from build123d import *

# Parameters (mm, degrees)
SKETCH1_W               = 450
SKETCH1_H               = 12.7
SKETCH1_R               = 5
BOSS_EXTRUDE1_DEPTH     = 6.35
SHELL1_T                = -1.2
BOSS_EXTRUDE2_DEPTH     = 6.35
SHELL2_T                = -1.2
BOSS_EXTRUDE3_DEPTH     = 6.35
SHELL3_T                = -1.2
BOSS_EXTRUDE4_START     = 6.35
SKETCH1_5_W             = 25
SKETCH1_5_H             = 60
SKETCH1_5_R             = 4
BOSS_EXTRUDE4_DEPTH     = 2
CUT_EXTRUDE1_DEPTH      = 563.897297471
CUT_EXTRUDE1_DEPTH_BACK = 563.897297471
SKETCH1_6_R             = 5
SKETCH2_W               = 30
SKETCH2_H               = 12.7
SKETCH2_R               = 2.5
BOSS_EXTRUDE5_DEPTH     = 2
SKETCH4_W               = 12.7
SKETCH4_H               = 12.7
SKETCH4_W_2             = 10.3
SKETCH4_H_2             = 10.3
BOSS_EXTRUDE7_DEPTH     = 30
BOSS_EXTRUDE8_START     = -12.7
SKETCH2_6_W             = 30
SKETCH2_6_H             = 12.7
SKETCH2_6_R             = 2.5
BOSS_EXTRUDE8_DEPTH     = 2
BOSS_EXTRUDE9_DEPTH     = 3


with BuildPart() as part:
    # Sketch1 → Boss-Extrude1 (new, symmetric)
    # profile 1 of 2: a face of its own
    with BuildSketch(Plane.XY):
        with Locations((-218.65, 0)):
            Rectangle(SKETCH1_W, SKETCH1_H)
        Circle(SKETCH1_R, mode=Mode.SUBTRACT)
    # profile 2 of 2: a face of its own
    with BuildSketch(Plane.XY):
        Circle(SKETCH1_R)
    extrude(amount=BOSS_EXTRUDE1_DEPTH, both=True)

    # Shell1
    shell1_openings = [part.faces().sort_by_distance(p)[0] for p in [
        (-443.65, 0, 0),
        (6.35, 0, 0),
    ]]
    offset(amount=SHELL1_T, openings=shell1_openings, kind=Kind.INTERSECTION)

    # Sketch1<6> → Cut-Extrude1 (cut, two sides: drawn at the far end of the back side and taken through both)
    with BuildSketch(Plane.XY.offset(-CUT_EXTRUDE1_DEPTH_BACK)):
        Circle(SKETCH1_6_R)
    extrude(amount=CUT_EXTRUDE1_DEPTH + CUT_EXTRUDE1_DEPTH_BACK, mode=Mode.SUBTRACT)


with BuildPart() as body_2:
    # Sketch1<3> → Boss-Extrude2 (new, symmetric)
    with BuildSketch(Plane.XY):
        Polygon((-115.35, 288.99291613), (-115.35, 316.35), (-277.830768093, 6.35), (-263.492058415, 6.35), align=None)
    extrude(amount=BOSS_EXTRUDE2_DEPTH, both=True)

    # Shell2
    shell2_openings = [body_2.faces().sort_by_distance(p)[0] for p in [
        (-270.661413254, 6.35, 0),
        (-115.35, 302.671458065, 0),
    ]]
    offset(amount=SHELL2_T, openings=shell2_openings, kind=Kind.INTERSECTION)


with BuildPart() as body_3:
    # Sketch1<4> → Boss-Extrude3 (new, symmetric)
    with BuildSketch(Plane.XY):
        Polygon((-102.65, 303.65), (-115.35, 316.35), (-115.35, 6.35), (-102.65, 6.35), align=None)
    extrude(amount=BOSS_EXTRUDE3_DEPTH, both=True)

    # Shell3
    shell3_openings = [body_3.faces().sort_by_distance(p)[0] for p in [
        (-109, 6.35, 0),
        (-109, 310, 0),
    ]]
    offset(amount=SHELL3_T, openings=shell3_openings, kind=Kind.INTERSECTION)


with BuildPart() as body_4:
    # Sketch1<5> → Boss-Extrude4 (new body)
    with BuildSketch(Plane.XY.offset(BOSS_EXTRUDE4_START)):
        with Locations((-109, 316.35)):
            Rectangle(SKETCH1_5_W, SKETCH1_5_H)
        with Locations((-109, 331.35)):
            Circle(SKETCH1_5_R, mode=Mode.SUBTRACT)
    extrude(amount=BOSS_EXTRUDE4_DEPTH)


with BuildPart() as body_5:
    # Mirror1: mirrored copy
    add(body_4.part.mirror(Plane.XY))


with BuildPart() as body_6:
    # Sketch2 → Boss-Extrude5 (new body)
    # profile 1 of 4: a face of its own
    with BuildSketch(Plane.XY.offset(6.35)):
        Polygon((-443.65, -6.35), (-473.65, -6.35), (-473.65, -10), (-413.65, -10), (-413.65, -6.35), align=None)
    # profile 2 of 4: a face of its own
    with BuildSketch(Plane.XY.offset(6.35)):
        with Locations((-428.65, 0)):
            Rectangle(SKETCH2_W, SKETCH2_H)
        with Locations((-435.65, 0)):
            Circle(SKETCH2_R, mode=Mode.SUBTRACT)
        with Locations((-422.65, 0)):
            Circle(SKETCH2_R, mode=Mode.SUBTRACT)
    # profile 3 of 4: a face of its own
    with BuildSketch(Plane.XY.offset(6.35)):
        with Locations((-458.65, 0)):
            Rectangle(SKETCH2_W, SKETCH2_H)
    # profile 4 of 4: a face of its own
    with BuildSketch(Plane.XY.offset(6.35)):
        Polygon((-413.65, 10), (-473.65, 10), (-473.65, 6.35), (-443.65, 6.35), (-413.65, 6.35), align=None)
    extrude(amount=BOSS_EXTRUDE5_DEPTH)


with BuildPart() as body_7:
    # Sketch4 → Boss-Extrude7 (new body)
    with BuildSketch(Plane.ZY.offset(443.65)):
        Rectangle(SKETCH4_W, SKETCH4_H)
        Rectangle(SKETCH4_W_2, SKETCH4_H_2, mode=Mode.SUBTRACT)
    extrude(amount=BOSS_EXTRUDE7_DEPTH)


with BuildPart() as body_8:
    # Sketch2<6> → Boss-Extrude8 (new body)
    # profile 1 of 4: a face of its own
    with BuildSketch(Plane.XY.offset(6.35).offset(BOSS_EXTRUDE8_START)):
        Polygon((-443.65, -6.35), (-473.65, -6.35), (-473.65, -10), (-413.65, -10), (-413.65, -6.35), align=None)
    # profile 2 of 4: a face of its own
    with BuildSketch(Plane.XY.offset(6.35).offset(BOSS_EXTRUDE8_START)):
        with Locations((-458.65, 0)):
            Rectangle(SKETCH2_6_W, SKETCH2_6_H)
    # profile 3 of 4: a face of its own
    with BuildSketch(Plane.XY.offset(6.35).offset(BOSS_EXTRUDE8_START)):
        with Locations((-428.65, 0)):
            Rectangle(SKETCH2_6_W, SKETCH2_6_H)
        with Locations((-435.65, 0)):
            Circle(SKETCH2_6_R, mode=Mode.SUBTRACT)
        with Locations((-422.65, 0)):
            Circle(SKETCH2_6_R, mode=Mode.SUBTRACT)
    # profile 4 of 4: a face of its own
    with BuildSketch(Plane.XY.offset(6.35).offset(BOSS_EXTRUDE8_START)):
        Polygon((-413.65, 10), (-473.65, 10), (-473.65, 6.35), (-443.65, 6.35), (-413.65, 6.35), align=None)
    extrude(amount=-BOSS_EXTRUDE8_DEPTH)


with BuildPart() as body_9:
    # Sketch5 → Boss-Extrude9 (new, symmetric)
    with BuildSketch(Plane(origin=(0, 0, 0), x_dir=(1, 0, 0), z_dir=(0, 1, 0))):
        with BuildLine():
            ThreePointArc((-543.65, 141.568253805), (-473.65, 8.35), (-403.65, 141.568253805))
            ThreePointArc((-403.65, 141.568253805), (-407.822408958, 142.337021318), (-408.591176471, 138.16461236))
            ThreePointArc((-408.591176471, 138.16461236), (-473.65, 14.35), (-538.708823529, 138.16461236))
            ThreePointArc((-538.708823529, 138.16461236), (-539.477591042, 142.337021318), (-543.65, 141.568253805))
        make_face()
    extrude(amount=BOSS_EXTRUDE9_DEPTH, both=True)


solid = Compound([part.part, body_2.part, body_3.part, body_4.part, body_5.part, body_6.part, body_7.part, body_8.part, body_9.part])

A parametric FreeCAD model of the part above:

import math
import FreeCAD as App
import Part
import Sketcher
Q = App.Units.Quantity


def faces_at(feature, points):
    """Names of the faces that lie closest to the given points."""
    faces = feature.Shape.Faces
    near = lambda p: min(range(len(faces)), key=lambda i: faces[i].distToShape(Part.Vertex(*p))[0])
    return sorted({f"Face{near(p) + 1}" for p in points})


def add_polygon(sketch, points):
    """Adds a closed chain of lines whose ends are joined by coincident constraints."""
    first, n = sketch.GeometryCount, len(points)
    for a, b in zip(points, points[1:] + points[:1]):
        sketch.addGeometry(Part.LineSegment(App.Vector(*a, 0), App.Vector(*b, 0)), False)
    for i in range(n):
        sketch.addConstraint(Sketcher.Constraint("Coincident", first + i, 2, first + (i + 1) % n, 1))

doc = App.newDocument("Part")
params = doc.addObject("Spreadsheet::Sheet", "Params")
for row, (alias, value) in enumerate([
    ("sketch1_width", "450 mm"),
    ("sketch1_height", "12.7 mm"),
    ("pad1_length", "12.7 mm"),
    ("thickness_wall", "1.2 mm"),
    ("sketch2_diameter", "10 mm"),
    ("sketch3_length", "350 mm"),
    ("pad2_length", "12.7 mm"),
    ("thickness2_wall", "1.2 mm"),
    ("sketch4_height", "310 mm"),
    ("sketch4_width", "12.7 mm"),
    ("pad3_length", "12.7 mm"),
    ("thickness3_wall", "1.2 mm"),
    ("sketch5_diameter", "8 mm"),
    ("sketch5_width", "25 mm"),
    ("sketch5_height", "60 mm"),
    ("pad4_length", "2 mm"),
    ("sketch6_diameter", "5 mm"),
    ("sketch6_width", "60 mm"),
    ("sketch6_height", "20 mm"),
    ("pad5_length", "2 mm"),
    ("sketch7_width", "12.7 mm"),
    ("sketch7_width2", "10.3 mm"),
    ("pad6_length", "30 mm"),
    ("sketch8_diameter", "5 mm"),
    ("sketch8_width", "60 mm"),
    ("sketch8_height", "20 mm"),
    ("pad7_length", "2 mm"),
    ("sketch9_radius", "85 mm"),
    ("sketch9_radius2", "3 mm"),
    ("sketch9_width", "70 mm"),
    ("pad8_length", "6 mm"),
], start=1):
    params.set(f"A{row}", alias)
    params.set(f"B{row}", "=" + value)
    params.setAlias(f"B{row}", alias)

body = doc.addObject("PartDesign::Body", "Body")

# Sketch on XY plane
sketch1 = doc.addObject("Sketcher::SketchObject", "Sketch")
body.addObject(sketch1)
sketch1.AttachmentSupport = (doc.XY_Plane, [""])
sketch1.MapMode = "FlatFace"
add_polygon(sketch1, [(-444, 6), (-444, -6), (6, -6), (6, 6)])  # lines 0-3
sketch1.addConstraint(Sketcher.Constraint("Vertical", 0))
sketch1.addConstraint(Sketcher.Constraint("Horizontal", 1))
sketch1.addConstraint(Sketcher.Constraint("Vertical", 2))
sketch1.addConstraint(Sketcher.Constraint("Horizontal", 3))
sketch1.addConstraint(Sketcher.Constraint("DistanceX", 1, 1, 1, 2, 450.0))
sketch1.addConstraint(Sketcher.Constraint("DistanceY", 0, 2, 0, 1, 12.7))
sketch1.addConstraint(Sketcher.Constraint("DistanceX", 0, 2, -1, 1, 443.65))
sketch1.addConstraint(Sketcher.Constraint("DistanceY", 0, 2, -1, 1, 6.35))
sketch1.setExpression("Constraints[8]", "Params.sketch1_width")
sketch1.setExpression("Constraints[9]", "Params.sketch1_height")
pad1 = doc.addObject("PartDesign::Pad", "Pad")
body.addObject(pad1)
pad1.Profile = sketch1
pad1.setExpression("Length", "Params.pad1_length")
pad1.Midplane = True
doc.recompute()

thickness = doc.addObject("PartDesign::Thickness", "Thickness")
body.addObject(thickness)
thickness.Base = (pad1, faces_at(pad1, [(-443.65, 0, 0), (6.35, 0, 0)]))
thickness.setExpression("Value", "Params.thickness_wall")
thickness.Reversed = True
thickness.Join = "Intersection"

# Sketch on XY plane
sketch2 = doc.addObject("Sketcher::SketchObject", "Sketch001")
body.addObject(sketch2)
sketch2.AttachmentSupport = (doc.XY_Plane, [""])
sketch2.MapMode = "FlatFace"
sketch2.addGeometry(Part.Circle(App.Vector(0, 0, 0), App.Vector(0, 0, 1), 5), False)
sketch2.addConstraint(Sketcher.Constraint("Coincident", 0, 3, -1, 1))
sketch2.addConstraint(Sketcher.Constraint("Diameter", 0, 10.0))
sketch2.setExpression("Constraints[1]", "Params.sketch2_diameter")
pocket1 = doc.addObject("PartDesign::Pocket", "Pocket")
body.addObject(pocket1)
pocket1.Profile = sketch2
pocket1.Type = "ThroughAll"
pocket1.Midplane = True
body2 = doc.addObject("PartDesign::Body", "Body001")

# Sketch on XY plane
sketch3 = doc.addObject("Sketcher::SketchObject", "Sketch002")
body2.addObject(sketch3)
sketch3.AttachmentSupport = (doc.getObject("XY_Plane001"), [""])
sketch3.MapMode = "FlatFace"
add_polygon(sketch3, [(-115, 289), (-115, 316), (-278, 6), (-263, 6)])  # lines 0-3
sketch3.addConstraint(Sketcher.Constraint("Vertical", 0))
sketch3.addConstraint(Sketcher.Constraint("Horizontal", 2))
sketch3.addConstraint(Sketcher.Constraint("Parallel", 1, 3))
sketch3.addConstraint(Sketcher.Constraint("Distance", 1, 350.0))
sketch3.addConstraint(Sketcher.Constraint("DistanceY", 1, 2, 0, 2, 310.0))
sketch3.addConstraint(Sketcher.Constraint("DistanceX", 0, 2, -1, 1, 115.35))
sketch3.addConstraint(Sketcher.Constraint("DistanceY", -1, 1, 0, 2, 316.35))
sketch3.addConstraint(Sketcher.Constraint("DistanceX", 2, 1, 2, 2, 14.33871))
sketch3.setExpression("Constraints[7]", "Params.sketch3_length")
pad2 = doc.addObject("PartDesign::Pad", "Pad001")
body2.addObject(pad2)
pad2.Profile = sketch3
pad2.setExpression("Length", "Params.pad2_length")
pad2.Midplane = True
doc.recompute()

thickness2 = doc.addObject("PartDesign::Thickness", "Thickness001")
body2.addObject(thickness2)
thickness2.Base = (pad2, faces_at(pad2, [(-270.661, 6.35, 0), (-115.35, 302.671, 0)]))
thickness2.setExpression("Value", "Params.thickness2_wall")
thickness2.Reversed = True
thickness2.Join = "Intersection"
body3 = doc.addObject("PartDesign::Body", "Body002")

# Sketch on XY plane
sketch4 = doc.addObject("Sketcher::SketchObject", "Sketch003")
body3.addObject(sketch4)
sketch4.AttachmentSupport = (doc.getObject("XY_Plane002"), [""])
sketch4.MapMode = "FlatFace"
add_polygon(sketch4, [(-103, 304), (-115, 316), (-115, 6), (-103, 6)])  # lines 0-3
sketch4.addConstraint(Sketcher.Constraint("Vertical", 1))
sketch4.addConstraint(Sketcher.Constraint("Horizontal", 2))
sketch4.addConstraint(Sketcher.Constraint("Vertical", 3))
sketch4.addConstraint(Sketcher.Constraint("DistanceY", 1, 2, 1, 1, 310.0))
sketch4.addConstraint(Sketcher.Constraint("Angle", 0, Q("135 deg")))
sketch4.addConstraint(Sketcher.Constraint("DistanceX", 2, 1, 2, 2, 12.7))
sketch4.addConstraint(Sketcher.Constraint("DistanceX", 0, 2, -1, 1, 115.35))
sketch4.addConstraint(Sketcher.Constraint("DistanceY", -1, 1, 0, 2, 316.35))
sketch4.setExpression("Constraints[7]", "Params.sketch4_height")
sketch4.setExpression("Constraints[9]", "Params.sketch4_width")
pad3 = doc.addObject("PartDesign::Pad", "Pad002")
body3.addObject(pad3)
pad3.Profile = sketch4
pad3.setExpression("Length", "Params.pad3_length")
pad3.Midplane = True
doc.recompute()

thickness3 = doc.addObject("PartDesign::Thickness", "Thickness002")
body3.addObject(thickness3)
thickness3.Base = (pad3, faces_at(pad3, [(-109, 6.35, 0), (-109, 310, 0)]))
thickness3.setExpression("Value", "Params.thickness3_wall")
thickness3.Reversed = True
thickness3.Join = "Intersection"
body4 = doc.addObject("PartDesign::Body", "Body003")

# Sketch on XY plane
sketch5 = doc.addObject("Sketcher::SketchObject", "Sketch004")
body4.addObject(sketch5)
sketch5.AttachmentSupport = (doc.getObject("XY_Plane003"), [""])
sketch5.MapMode = "FlatFace"
sketch5.AttachmentOffset = App.Placement(App.Vector(0, 0, 6.35), App.Rotation())
add_polygon(sketch5, [(-121.5, 346.4), (-121.5, 286.4), (-96.5, 286.4), (-96.5, 346.4)])  # lines 0-3
sketch5.addGeometry(Part.Circle(App.Vector(-109, 331.4, 0), App.Vector(0, 0, 1), 4), False)  # 4
sketch5.addConstraint(Sketcher.Constraint("Vertical", 0))
sketch5.addConstraint(Sketcher.Constraint("Horizontal", 1))
sketch5.addConstraint(Sketcher.Constraint("Vertical", 2))
sketch5.addConstraint(Sketcher.Constraint("Horizontal", 3))
sketch5.addConstraint(Sketcher.Constraint("Diameter", 4, 8.0))
sketch5.addConstraint(Sketcher.Constraint("DistanceX", 1, 1, 1, 2, 25.0))
sketch5.addConstraint(Sketcher.Constraint("DistanceY", 0, 2, 0, 1, 60.0))
sketch5.addConstraint(Sketcher.Constraint("DistanceX", 4, 3, -1, 1, 109.0))
sketch5.addConstraint(Sketcher.Constraint("DistanceY", 0, 2, 4, 3, 45.0))
sketch5.addConstraint(Sketcher.Constraint("DistanceX", 0, 2, -1, 1, 121.5))
sketch5.addConstraint(Sketcher.Constraint("DistanceY", -1, 1, 4, 3, 331.35))
sketch5.setExpression("Constraints[8]", "Params.sketch5_diameter")
sketch5.setExpression("Constraints[9]", "Params.sketch5_width")
sketch5.setExpression("Constraints[10]", "Params.sketch5_height")
pad4 = doc.addObject("PartDesign::Pad", "Pad003")
body4.addObject(pad4)
pad4.Profile = sketch5
pad4.setExpression("Length", "Params.pad4_length")
body5 = doc.addObject("PartDesign::Body", "Body004")
doc.recompute()

mirroring = doc.addObject("Part::Mirroring", "Mirroring")
mirroring.Source = body4
mirroring.Base = App.Vector(0, 0, 0)
mirroring.Normal = App.Vector(0, 0, 1)
body5.BaseFeature = mirroring
doc.recompute()
body6 = doc.addObject("PartDesign::Body", "Body005")

# Sketch on XY plane
sketch6 = doc.addObject("Sketcher::SketchObject", "Sketch005")
body6.addObject(sketch6)
sketch6.AttachmentSupport = (doc.getObject("XY_Plane005"), [""])
sketch6.MapMode = "FlatFace"
sketch6.AttachmentOffset = App.Placement(App.Vector(0, 0, 6.35), App.Rotation())
add_polygon(sketch6, [(-473.6, -10), (-413.6, -10), (-413.6, 10), (-473.6, 10)])  # lines 0-3
sketch6.addGeometry(Part.Circle(App.Vector(-422.6, 0, 0), App.Vector(0, 0, 1), 2.5), False)  # 4
sketch6.addGeometry(Part.Circle(App.Vector(-435.6, 0, 0), App.Vector(0, 0, 1), 2.5), False)  # 5
sketch6.addConstraint(Sketcher.Constraint("Horizontal", 0))
sketch6.addConstraint(Sketcher.Constraint("Vertical", 1))
sketch6.addConstraint(Sketcher.Constraint("Horizontal", 2))
sketch6.addConstraint(Sketcher.Constraint("Vertical", 3))
sketch6.addConstraint(Sketcher.Constraint("Equal", 4, 5))
sketch6.addConstraint(Sketcher.Constraint("PointOnObject", 4, 3, -1))
sketch6.addConstraint(Sketcher.Constraint("PointOnObject", 5, 3, -1))
sketch6.addConstraint(Sketcher.Constraint("Diameter", 4, 5.0))
sketch6.addConstraint(Sketcher.Constraint("DistanceX", 0, 1, 0, 2, 60.0))
sketch6.addConstraint(Sketcher.Constraint("DistanceY", 1, 1, 1, 2, 20.0))
sketch6.addConstraint(Sketcher.Constraint("DistanceY", 0, 2, -1, 1, 10.0))
sketch6.addConstraint(Sketcher.Constraint("DistanceX", 5, 3, 4, 3, 13.0))
sketch6.addConstraint(Sketcher.Constraint("DistanceX", 4, 3, 0, 2, 9.0))
sketch6.addConstraint(Sketcher.Constraint("DistanceX", 4, 3, -1, 1, 422.65))
sketch6.setExpression("Constraints[11]", "Params.sketch6_diameter")
sketch6.setExpression("Constraints[12]", "Params.sketch6_width")
sketch6.setExpression("Constraints[13]", "Params.sketch6_height")
pad5 = doc.addObject("PartDesign::Pad", "Pad004")
body6.addObject(pad5)
pad5.Profile = sketch6
pad5.setExpression("Length", "Params.pad5_length")
body7 = doc.addObject("PartDesign::Body", "Body006")

# Sketch on YZ plane
sketch7 = doc.addObject("Sketcher::SketchObject", "Sketch006")
body7.addObject(sketch7)
sketch7.AttachmentSupport = (doc.getObject("YZ_Plane006"), [""])
sketch7.MapMode = "FlatFace"
sketch7.AttachmentOffset = App.Placement(App.Vector(0, 0, -443.65), App.Rotation())
add_polygon(sketch7, [(6, -6), (-6, -6), (-6, 6), (6, 6)])  # lines 0-3
add_polygon(sketch7, [(-5, 5), (-5, -5), (5, -5), (5, 5)])  # lines 4-7
sketch7.addConstraint(Sketcher.Constraint("Horizontal", 0))
sketch7.addConstraint(Sketcher.Constraint("Vertical", 1))
sketch7.addConstraint(Sketcher.Constraint("Horizontal", 2))
sketch7.addConstraint(Sketcher.Constraint("Vertical", 3))
sketch7.addConstraint(Sketcher.Constraint("Vertical", 4))
sketch7.addConstraint(Sketcher.Constraint("Horizontal", 5))
sketch7.addConstraint(Sketcher.Constraint("Vertical", 6))
sketch7.addConstraint(Sketcher.Constraint("Horizontal", 7))
sketch7.addConstraint(Sketcher.Constraint("Symmetric", 0, 2, 2, 2, -1, 1))
sketch7.addConstraint(Sketcher.Constraint("Symmetric", 4, 2, 6, 2, -1, 1))
sketch7.addConstraint(Sketcher.Constraint("Equal", 2, 1))
sketch7.addConstraint(Sketcher.Constraint("Equal", 7, 4))
sketch7.addConstraint(Sketcher.Constraint("DistanceX", 0, 2, 0, 1, 12.7))
sketch7.addConstraint(Sketcher.Constraint("DistanceX", 5, 1, 5, 2, 10.3))
sketch7.setExpression("Constraints[20]", "Params.sketch7_width")
sketch7.setExpression("Constraints[21]", "Params.sketch7_width2")
pad6 = doc.addObject("PartDesign::Pad", "Pad005")
body7.addObject(pad6)
pad6.Profile = sketch7
pad6.setExpression("Length", "Params.pad6_length")
pad6.Reversed = True
body8 = doc.addObject("PartDesign::Body", "Body007")

# Sketch on XY plane
sketch8 = doc.addObject("Sketcher::SketchObject", "Sketch007")
body8.addObject(sketch8)
sketch8.AttachmentSupport = (doc.getObject("XY_Plane007"), [""])
sketch8.MapMode = "FlatFace"
sketch8.AttachmentOffset = App.Placement(App.Vector(0, 0, -6.35), App.Rotation())
add_polygon(sketch8, [(-473.6, -10), (-413.6, -10), (-413.6, 10), (-473.6, 10)])  # lines 0-3
sketch8.addGeometry(Part.Circle(App.Vector(-422.6, 0, 0), App.Vector(0, 0, 1), 2.5), False)  # 4
sketch8.addGeometry(Part.Circle(App.Vector(-435.6, 0, 0), App.Vector(0, 0, 1), 2.5), False)  # 5
sketch8.addConstraint(Sketcher.Constraint("Horizontal", 0))
sketch8.addConstraint(Sketcher.Constraint("Vertical", 1))
sketch8.addConstraint(Sketcher.Constraint("Horizontal", 2))
sketch8.addConstraint(Sketcher.Constraint("Vertical", 3))
sketch8.addConstraint(Sketcher.Constraint("Equal", 4, 5))
sketch8.addConstraint(Sketcher.Constraint("PointOnObject", 4, 3, -1))
sketch8.addConstraint(Sketcher.Constraint("PointOnObject", 5, 3, -1))
sketch8.addConstraint(Sketcher.Constraint("Diameter", 4, 5.0))
sketch8.addConstraint(Sketcher.Constraint("DistanceX", 0, 1, 0, 2, 60.0))
sketch8.addConstraint(Sketcher.Constraint("DistanceY", 1, 1, 1, 2, 20.0))
sketch8.addConstraint(Sketcher.Constraint("DistanceY", 0, 2, -1, 1, 10.0))
sketch8.addConstraint(Sketcher.Constraint("DistanceX", 5, 3, 4, 3, 13.0))
sketch8.addConstraint(Sketcher.Constraint("DistanceX", 4, 3, 0, 2, 9.0))
sketch8.addConstraint(Sketcher.Constraint("DistanceX", 4, 3, -1, 1, 422.65))
sketch8.setExpression("Constraints[11]", "Params.sketch8_diameter")
sketch8.setExpression("Constraints[12]", "Params.sketch8_width")
sketch8.setExpression("Constraints[13]", "Params.sketch8_height")
pad7 = doc.addObject("PartDesign::Pad", "Pad006")
body8.addObject(pad7)
pad7.Profile = sketch8
pad7.setExpression("Length", "Params.pad7_length")
pad7.Reversed = True
body9 = doc.addObject("PartDesign::Body", "Body008")

# Sketch on XZ plane
sketch9 = doc.addObject("Sketcher::SketchObject", "Sketch008")
body9.addObject(sketch9)
sketch9.AttachmentSupport = (doc.getObject("XZ_Plane008"), [""])
sketch9.MapMode = "FlatFace"
sketch9.addGeometry(Part.ArcOfCircle(Part.Circle(App.Vector(-473.6, -93.3, 0), App.Vector(0, 0, 1), 85), math.radians(-35), math.radians(215)), False)
sketch9.addGeometry(Part.ArcOfCircle(Part.Circle(App.Vector(-406.1, -139.9, 0), App.Vector(0, 0, 1), 3), math.radians(145), math.radians(325)), False)
sketch9.addGeometry(Part.ArcOfCircle(Part.Circle(App.Vector(-473.6, -93.3, 0), App.Vector(0, 0, 1), 79), math.radians(-35), math.radians(215)), False)
sketch9.addGeometry(Part.ArcOfCircle(Part.Circle(App.Vector(-541.2, -139.9, 0), App.Vector(0, 0, 1), 3), math.radians(-145), math.radians(35)), False)
sketch9.addConstraint(Sketcher.Constraint("Tangent", 0, 1, 1, 2))
sketch9.addConstraint(Sketcher.Constraint("Tangent", 1, 1, 2, 1))
sketch9.addConstraint(Sketcher.Constraint("Tangent", 2, 2, 3, 2))
sketch9.addConstraint(Sketcher.Constraint("Tangent", 3, 1, 0, 2))
sketch9.addConstraint(Sketcher.Constraint("Coincident", 2, 3, 0, 3))
sketch9.addConstraint(Sketcher.Constraint("Horizontal", 1, 3, 3, 3))
sketch9.addConstraint(Sketcher.Constraint("Radius", 0, 85.0))
sketch9.addConstraint(Sketcher.Constraint("Radius", 1, 3.0))
sketch9.addConstraint(Sketcher.Constraint("DistanceX", 0, 3, 0, 1, 70.0))
sketch9.addConstraint(Sketcher.Constraint("DistanceX", 0, 3, -1, 1, 473.65))
sketch9.addConstraint(Sketcher.Constraint("DistanceY", 0, 3, -1, 1, 93.35))
sketch9.setExpression("Constraints[6]", "Params.sketch9_radius")
sketch9.setExpression("Constraints[7]", "Params.sketch9_radius2")
sketch9.setExpression("Constraints[8]", "Params.sketch9_width")
pad8 = doc.addObject("PartDesign::Pad", "Pad007")
body9.addObject(pad8)
pad8.Profile = sketch9
pad8.setExpression("Length", "Params.pad8_length")
pad8.Midplane = True
mirroring.Visibility = False

doc.recompute()
